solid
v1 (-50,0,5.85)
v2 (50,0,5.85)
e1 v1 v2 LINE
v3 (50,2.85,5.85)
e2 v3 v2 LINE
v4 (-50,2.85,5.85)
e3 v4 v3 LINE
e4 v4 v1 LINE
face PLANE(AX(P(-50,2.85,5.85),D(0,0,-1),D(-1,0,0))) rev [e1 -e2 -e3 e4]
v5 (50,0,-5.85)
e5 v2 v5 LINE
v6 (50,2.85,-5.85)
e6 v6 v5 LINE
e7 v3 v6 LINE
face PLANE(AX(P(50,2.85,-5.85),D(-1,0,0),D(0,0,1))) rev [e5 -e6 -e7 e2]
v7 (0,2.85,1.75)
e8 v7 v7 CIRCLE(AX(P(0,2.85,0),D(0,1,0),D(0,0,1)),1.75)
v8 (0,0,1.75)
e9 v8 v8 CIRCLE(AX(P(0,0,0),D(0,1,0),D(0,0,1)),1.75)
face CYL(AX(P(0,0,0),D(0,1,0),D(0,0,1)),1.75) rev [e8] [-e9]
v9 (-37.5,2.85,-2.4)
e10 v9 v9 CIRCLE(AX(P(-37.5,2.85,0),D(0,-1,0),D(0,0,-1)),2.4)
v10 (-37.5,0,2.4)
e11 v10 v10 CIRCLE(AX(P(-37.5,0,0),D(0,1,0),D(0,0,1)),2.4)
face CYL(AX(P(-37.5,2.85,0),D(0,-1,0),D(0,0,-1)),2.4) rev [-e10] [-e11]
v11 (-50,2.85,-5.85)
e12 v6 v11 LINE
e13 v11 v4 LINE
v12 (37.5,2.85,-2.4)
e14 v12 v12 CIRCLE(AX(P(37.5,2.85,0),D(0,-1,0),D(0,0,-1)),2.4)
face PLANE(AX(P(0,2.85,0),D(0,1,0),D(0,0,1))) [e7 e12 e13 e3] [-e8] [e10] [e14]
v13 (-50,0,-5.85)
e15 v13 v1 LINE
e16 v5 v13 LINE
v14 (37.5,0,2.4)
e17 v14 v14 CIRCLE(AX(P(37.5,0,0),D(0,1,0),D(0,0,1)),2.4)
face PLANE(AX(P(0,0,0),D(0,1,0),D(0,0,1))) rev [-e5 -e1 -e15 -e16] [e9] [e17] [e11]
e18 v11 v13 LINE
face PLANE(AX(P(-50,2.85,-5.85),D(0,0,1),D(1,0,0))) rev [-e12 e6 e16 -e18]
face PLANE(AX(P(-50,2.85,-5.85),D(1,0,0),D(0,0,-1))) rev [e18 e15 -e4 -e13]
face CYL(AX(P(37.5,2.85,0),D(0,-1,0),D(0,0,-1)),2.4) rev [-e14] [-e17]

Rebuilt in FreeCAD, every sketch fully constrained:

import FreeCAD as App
import Part
import Sketcher
from FreeCAD import Vector

doc = App.newDocument("Part")
body = doc.addObject("PartDesign::Body", "Body")

# Sketch on XZ plane
sketch1 = body.newObject("Sketcher::SketchObject", "Sketch")
sketch1.AttachmentSupport = (doc.getObject("XZ_Plane"), [""])
sketch1.MapMode = "FlatFace"
sketch1.addGeometry([
    Part.LineSegment(Vector(-50, -6, 0), Vector(-50, 6, 0)),
    Part.LineSegment(Vector(-50, 6, 0), Vector(50, 6, 0)),
    Part.LineSegment(Vector(50, 6, 0), Vector(50, -6, 0)),
    Part.LineSegment(Vector(50, -6, 0), Vector(-50, -6, 0)),
], False)
sketch1.addConstraint([
    Sketcher.Constraint("Coincident", 0, 2, 1, 1),
    Sketcher.Constraint("Coincident", 1, 2, 2, 1),
    Sketcher.Constraint("Coincident", 2, 2, 3, 1),
    Sketcher.Constraint("Coincident", 3, 2, 0, 1),
    Sketcher.Constraint("Vertical", 0),
    Sketcher.Constraint("Horizontal", 1),
    Sketcher.Constraint("Vertical", 2),
    Sketcher.Constraint("Horizontal", 3),
    Sketcher.Constraint("Symmetric", 0, 2, 2, 2, -1, 1),
    Sketcher.Constraint("DistanceX", 1, 1, 1, 2, 100.0),
    Sketcher.Constraint("DistanceY", 0, 1, 0, 2, 11.7),
])
pad1 = body.newObject("PartDesign::Pad", "Pad")
pad1.Profile = sketch1
pad1.Length = 2.85
pad1.Reversed = True

# Sketch on XZ plane
sketch2 = body.newObject("Sketcher::SketchObject", "Sketch001")
sketch2.AttachmentSupport = (doc.getObject("XZ_Plane"), [""])
sketch2.MapMode = "FlatFace"
sketch2.AttachmentOffset = App.Placement(Vector(0, 0, -2.85), App.Rotation())
sketch2.addGeometry(Part.Circle(Vector(0, 0, 0), Vector(0, 0, 1), 1.8), False)
sketch2.addConstraint([
    Sketcher.Constraint("Coincident", 0, 3, -1, 1),
    Sketcher.Constraint("Diameter", 0, 3.5),
])
pocket1 = body.newObject("PartDesign::Pocket", "Pocket")
pocket1.Profile = sketch2
pocket1.Type = "ThroughAll"
pocket1.Reversed = True

# Sketch on XZ plane
sketch3 = body.newObject("Sketcher::SketchObject", "Sketch002")
sketch3.AttachmentSupport = (doc.getObject("XZ_Plane"), [""])
sketch3.MapMode = "FlatFace"
sketch3.AttachmentOffset = App.Placement(Vector(0, 0, 2.85), App.Rotation())
sketch3.addGeometry([
    Part.Circle(Vector(-37.5, 0, 0), Vector(0, 0, 1), 2.4),
    Part.Circle(Vector(37.5, 0, 0), Vector(0, 0, 1), 2.4),
], False)
sketch3.addConstraint([
    Sketcher.Constraint("Equal", 0, 1),
    Sketcher.Constraint("Symmetric", 0, 3, 1, 3, -1, 1),
    Sketcher.Constraint("PointOnObject", 0, 3, -1),
    Sketcher.Constraint("Diameter", 0, 4.8),
    Sketcher.Constraint("DistanceX", 0, 3, 1, 3, 75.0),
])
pocket2 = body.newObject("PartDesign::Pocket", "Pocket001")
pocket2.Profile = sketch3
pocket2.Type = "ThroughAll"

doc.recompute()
